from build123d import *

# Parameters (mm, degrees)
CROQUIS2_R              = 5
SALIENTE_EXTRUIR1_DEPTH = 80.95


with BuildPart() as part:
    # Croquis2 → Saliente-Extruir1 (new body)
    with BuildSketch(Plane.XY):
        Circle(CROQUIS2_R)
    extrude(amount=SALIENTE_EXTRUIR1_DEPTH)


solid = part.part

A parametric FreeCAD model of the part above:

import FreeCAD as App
import Part
import Sketcher

V = App.Vector

doc = App.newDocument("Part")
body = doc.addObject("PartDesign::Body", "Body")

# Sketch on XY plane
sketch1 = doc.addObject("Sketcher::SketchObject", "Sketch")
body.addObject(sketch1)
sketch1.AttachmentSupport = (doc.XY_Plane, [""])
sketch1.MapMode = "FlatFace"
sketch1.addGeometry(Part.Circle(V(0, 0, 0), V(0, 0, 1), 5), False)
sketch1.addConstraint([
    Sketcher.Constraint("Coincident", 0, 3, -1, 1),
    Sketcher.Constraint("Diameter", 0, 10.0),
])
pad1 = doc.addObject("PartDesign::Pad", "Pad")
body.addObject(pad1)
pad1.Profile = sketch1
pad1.Length = 80.95

doc.recompute()
